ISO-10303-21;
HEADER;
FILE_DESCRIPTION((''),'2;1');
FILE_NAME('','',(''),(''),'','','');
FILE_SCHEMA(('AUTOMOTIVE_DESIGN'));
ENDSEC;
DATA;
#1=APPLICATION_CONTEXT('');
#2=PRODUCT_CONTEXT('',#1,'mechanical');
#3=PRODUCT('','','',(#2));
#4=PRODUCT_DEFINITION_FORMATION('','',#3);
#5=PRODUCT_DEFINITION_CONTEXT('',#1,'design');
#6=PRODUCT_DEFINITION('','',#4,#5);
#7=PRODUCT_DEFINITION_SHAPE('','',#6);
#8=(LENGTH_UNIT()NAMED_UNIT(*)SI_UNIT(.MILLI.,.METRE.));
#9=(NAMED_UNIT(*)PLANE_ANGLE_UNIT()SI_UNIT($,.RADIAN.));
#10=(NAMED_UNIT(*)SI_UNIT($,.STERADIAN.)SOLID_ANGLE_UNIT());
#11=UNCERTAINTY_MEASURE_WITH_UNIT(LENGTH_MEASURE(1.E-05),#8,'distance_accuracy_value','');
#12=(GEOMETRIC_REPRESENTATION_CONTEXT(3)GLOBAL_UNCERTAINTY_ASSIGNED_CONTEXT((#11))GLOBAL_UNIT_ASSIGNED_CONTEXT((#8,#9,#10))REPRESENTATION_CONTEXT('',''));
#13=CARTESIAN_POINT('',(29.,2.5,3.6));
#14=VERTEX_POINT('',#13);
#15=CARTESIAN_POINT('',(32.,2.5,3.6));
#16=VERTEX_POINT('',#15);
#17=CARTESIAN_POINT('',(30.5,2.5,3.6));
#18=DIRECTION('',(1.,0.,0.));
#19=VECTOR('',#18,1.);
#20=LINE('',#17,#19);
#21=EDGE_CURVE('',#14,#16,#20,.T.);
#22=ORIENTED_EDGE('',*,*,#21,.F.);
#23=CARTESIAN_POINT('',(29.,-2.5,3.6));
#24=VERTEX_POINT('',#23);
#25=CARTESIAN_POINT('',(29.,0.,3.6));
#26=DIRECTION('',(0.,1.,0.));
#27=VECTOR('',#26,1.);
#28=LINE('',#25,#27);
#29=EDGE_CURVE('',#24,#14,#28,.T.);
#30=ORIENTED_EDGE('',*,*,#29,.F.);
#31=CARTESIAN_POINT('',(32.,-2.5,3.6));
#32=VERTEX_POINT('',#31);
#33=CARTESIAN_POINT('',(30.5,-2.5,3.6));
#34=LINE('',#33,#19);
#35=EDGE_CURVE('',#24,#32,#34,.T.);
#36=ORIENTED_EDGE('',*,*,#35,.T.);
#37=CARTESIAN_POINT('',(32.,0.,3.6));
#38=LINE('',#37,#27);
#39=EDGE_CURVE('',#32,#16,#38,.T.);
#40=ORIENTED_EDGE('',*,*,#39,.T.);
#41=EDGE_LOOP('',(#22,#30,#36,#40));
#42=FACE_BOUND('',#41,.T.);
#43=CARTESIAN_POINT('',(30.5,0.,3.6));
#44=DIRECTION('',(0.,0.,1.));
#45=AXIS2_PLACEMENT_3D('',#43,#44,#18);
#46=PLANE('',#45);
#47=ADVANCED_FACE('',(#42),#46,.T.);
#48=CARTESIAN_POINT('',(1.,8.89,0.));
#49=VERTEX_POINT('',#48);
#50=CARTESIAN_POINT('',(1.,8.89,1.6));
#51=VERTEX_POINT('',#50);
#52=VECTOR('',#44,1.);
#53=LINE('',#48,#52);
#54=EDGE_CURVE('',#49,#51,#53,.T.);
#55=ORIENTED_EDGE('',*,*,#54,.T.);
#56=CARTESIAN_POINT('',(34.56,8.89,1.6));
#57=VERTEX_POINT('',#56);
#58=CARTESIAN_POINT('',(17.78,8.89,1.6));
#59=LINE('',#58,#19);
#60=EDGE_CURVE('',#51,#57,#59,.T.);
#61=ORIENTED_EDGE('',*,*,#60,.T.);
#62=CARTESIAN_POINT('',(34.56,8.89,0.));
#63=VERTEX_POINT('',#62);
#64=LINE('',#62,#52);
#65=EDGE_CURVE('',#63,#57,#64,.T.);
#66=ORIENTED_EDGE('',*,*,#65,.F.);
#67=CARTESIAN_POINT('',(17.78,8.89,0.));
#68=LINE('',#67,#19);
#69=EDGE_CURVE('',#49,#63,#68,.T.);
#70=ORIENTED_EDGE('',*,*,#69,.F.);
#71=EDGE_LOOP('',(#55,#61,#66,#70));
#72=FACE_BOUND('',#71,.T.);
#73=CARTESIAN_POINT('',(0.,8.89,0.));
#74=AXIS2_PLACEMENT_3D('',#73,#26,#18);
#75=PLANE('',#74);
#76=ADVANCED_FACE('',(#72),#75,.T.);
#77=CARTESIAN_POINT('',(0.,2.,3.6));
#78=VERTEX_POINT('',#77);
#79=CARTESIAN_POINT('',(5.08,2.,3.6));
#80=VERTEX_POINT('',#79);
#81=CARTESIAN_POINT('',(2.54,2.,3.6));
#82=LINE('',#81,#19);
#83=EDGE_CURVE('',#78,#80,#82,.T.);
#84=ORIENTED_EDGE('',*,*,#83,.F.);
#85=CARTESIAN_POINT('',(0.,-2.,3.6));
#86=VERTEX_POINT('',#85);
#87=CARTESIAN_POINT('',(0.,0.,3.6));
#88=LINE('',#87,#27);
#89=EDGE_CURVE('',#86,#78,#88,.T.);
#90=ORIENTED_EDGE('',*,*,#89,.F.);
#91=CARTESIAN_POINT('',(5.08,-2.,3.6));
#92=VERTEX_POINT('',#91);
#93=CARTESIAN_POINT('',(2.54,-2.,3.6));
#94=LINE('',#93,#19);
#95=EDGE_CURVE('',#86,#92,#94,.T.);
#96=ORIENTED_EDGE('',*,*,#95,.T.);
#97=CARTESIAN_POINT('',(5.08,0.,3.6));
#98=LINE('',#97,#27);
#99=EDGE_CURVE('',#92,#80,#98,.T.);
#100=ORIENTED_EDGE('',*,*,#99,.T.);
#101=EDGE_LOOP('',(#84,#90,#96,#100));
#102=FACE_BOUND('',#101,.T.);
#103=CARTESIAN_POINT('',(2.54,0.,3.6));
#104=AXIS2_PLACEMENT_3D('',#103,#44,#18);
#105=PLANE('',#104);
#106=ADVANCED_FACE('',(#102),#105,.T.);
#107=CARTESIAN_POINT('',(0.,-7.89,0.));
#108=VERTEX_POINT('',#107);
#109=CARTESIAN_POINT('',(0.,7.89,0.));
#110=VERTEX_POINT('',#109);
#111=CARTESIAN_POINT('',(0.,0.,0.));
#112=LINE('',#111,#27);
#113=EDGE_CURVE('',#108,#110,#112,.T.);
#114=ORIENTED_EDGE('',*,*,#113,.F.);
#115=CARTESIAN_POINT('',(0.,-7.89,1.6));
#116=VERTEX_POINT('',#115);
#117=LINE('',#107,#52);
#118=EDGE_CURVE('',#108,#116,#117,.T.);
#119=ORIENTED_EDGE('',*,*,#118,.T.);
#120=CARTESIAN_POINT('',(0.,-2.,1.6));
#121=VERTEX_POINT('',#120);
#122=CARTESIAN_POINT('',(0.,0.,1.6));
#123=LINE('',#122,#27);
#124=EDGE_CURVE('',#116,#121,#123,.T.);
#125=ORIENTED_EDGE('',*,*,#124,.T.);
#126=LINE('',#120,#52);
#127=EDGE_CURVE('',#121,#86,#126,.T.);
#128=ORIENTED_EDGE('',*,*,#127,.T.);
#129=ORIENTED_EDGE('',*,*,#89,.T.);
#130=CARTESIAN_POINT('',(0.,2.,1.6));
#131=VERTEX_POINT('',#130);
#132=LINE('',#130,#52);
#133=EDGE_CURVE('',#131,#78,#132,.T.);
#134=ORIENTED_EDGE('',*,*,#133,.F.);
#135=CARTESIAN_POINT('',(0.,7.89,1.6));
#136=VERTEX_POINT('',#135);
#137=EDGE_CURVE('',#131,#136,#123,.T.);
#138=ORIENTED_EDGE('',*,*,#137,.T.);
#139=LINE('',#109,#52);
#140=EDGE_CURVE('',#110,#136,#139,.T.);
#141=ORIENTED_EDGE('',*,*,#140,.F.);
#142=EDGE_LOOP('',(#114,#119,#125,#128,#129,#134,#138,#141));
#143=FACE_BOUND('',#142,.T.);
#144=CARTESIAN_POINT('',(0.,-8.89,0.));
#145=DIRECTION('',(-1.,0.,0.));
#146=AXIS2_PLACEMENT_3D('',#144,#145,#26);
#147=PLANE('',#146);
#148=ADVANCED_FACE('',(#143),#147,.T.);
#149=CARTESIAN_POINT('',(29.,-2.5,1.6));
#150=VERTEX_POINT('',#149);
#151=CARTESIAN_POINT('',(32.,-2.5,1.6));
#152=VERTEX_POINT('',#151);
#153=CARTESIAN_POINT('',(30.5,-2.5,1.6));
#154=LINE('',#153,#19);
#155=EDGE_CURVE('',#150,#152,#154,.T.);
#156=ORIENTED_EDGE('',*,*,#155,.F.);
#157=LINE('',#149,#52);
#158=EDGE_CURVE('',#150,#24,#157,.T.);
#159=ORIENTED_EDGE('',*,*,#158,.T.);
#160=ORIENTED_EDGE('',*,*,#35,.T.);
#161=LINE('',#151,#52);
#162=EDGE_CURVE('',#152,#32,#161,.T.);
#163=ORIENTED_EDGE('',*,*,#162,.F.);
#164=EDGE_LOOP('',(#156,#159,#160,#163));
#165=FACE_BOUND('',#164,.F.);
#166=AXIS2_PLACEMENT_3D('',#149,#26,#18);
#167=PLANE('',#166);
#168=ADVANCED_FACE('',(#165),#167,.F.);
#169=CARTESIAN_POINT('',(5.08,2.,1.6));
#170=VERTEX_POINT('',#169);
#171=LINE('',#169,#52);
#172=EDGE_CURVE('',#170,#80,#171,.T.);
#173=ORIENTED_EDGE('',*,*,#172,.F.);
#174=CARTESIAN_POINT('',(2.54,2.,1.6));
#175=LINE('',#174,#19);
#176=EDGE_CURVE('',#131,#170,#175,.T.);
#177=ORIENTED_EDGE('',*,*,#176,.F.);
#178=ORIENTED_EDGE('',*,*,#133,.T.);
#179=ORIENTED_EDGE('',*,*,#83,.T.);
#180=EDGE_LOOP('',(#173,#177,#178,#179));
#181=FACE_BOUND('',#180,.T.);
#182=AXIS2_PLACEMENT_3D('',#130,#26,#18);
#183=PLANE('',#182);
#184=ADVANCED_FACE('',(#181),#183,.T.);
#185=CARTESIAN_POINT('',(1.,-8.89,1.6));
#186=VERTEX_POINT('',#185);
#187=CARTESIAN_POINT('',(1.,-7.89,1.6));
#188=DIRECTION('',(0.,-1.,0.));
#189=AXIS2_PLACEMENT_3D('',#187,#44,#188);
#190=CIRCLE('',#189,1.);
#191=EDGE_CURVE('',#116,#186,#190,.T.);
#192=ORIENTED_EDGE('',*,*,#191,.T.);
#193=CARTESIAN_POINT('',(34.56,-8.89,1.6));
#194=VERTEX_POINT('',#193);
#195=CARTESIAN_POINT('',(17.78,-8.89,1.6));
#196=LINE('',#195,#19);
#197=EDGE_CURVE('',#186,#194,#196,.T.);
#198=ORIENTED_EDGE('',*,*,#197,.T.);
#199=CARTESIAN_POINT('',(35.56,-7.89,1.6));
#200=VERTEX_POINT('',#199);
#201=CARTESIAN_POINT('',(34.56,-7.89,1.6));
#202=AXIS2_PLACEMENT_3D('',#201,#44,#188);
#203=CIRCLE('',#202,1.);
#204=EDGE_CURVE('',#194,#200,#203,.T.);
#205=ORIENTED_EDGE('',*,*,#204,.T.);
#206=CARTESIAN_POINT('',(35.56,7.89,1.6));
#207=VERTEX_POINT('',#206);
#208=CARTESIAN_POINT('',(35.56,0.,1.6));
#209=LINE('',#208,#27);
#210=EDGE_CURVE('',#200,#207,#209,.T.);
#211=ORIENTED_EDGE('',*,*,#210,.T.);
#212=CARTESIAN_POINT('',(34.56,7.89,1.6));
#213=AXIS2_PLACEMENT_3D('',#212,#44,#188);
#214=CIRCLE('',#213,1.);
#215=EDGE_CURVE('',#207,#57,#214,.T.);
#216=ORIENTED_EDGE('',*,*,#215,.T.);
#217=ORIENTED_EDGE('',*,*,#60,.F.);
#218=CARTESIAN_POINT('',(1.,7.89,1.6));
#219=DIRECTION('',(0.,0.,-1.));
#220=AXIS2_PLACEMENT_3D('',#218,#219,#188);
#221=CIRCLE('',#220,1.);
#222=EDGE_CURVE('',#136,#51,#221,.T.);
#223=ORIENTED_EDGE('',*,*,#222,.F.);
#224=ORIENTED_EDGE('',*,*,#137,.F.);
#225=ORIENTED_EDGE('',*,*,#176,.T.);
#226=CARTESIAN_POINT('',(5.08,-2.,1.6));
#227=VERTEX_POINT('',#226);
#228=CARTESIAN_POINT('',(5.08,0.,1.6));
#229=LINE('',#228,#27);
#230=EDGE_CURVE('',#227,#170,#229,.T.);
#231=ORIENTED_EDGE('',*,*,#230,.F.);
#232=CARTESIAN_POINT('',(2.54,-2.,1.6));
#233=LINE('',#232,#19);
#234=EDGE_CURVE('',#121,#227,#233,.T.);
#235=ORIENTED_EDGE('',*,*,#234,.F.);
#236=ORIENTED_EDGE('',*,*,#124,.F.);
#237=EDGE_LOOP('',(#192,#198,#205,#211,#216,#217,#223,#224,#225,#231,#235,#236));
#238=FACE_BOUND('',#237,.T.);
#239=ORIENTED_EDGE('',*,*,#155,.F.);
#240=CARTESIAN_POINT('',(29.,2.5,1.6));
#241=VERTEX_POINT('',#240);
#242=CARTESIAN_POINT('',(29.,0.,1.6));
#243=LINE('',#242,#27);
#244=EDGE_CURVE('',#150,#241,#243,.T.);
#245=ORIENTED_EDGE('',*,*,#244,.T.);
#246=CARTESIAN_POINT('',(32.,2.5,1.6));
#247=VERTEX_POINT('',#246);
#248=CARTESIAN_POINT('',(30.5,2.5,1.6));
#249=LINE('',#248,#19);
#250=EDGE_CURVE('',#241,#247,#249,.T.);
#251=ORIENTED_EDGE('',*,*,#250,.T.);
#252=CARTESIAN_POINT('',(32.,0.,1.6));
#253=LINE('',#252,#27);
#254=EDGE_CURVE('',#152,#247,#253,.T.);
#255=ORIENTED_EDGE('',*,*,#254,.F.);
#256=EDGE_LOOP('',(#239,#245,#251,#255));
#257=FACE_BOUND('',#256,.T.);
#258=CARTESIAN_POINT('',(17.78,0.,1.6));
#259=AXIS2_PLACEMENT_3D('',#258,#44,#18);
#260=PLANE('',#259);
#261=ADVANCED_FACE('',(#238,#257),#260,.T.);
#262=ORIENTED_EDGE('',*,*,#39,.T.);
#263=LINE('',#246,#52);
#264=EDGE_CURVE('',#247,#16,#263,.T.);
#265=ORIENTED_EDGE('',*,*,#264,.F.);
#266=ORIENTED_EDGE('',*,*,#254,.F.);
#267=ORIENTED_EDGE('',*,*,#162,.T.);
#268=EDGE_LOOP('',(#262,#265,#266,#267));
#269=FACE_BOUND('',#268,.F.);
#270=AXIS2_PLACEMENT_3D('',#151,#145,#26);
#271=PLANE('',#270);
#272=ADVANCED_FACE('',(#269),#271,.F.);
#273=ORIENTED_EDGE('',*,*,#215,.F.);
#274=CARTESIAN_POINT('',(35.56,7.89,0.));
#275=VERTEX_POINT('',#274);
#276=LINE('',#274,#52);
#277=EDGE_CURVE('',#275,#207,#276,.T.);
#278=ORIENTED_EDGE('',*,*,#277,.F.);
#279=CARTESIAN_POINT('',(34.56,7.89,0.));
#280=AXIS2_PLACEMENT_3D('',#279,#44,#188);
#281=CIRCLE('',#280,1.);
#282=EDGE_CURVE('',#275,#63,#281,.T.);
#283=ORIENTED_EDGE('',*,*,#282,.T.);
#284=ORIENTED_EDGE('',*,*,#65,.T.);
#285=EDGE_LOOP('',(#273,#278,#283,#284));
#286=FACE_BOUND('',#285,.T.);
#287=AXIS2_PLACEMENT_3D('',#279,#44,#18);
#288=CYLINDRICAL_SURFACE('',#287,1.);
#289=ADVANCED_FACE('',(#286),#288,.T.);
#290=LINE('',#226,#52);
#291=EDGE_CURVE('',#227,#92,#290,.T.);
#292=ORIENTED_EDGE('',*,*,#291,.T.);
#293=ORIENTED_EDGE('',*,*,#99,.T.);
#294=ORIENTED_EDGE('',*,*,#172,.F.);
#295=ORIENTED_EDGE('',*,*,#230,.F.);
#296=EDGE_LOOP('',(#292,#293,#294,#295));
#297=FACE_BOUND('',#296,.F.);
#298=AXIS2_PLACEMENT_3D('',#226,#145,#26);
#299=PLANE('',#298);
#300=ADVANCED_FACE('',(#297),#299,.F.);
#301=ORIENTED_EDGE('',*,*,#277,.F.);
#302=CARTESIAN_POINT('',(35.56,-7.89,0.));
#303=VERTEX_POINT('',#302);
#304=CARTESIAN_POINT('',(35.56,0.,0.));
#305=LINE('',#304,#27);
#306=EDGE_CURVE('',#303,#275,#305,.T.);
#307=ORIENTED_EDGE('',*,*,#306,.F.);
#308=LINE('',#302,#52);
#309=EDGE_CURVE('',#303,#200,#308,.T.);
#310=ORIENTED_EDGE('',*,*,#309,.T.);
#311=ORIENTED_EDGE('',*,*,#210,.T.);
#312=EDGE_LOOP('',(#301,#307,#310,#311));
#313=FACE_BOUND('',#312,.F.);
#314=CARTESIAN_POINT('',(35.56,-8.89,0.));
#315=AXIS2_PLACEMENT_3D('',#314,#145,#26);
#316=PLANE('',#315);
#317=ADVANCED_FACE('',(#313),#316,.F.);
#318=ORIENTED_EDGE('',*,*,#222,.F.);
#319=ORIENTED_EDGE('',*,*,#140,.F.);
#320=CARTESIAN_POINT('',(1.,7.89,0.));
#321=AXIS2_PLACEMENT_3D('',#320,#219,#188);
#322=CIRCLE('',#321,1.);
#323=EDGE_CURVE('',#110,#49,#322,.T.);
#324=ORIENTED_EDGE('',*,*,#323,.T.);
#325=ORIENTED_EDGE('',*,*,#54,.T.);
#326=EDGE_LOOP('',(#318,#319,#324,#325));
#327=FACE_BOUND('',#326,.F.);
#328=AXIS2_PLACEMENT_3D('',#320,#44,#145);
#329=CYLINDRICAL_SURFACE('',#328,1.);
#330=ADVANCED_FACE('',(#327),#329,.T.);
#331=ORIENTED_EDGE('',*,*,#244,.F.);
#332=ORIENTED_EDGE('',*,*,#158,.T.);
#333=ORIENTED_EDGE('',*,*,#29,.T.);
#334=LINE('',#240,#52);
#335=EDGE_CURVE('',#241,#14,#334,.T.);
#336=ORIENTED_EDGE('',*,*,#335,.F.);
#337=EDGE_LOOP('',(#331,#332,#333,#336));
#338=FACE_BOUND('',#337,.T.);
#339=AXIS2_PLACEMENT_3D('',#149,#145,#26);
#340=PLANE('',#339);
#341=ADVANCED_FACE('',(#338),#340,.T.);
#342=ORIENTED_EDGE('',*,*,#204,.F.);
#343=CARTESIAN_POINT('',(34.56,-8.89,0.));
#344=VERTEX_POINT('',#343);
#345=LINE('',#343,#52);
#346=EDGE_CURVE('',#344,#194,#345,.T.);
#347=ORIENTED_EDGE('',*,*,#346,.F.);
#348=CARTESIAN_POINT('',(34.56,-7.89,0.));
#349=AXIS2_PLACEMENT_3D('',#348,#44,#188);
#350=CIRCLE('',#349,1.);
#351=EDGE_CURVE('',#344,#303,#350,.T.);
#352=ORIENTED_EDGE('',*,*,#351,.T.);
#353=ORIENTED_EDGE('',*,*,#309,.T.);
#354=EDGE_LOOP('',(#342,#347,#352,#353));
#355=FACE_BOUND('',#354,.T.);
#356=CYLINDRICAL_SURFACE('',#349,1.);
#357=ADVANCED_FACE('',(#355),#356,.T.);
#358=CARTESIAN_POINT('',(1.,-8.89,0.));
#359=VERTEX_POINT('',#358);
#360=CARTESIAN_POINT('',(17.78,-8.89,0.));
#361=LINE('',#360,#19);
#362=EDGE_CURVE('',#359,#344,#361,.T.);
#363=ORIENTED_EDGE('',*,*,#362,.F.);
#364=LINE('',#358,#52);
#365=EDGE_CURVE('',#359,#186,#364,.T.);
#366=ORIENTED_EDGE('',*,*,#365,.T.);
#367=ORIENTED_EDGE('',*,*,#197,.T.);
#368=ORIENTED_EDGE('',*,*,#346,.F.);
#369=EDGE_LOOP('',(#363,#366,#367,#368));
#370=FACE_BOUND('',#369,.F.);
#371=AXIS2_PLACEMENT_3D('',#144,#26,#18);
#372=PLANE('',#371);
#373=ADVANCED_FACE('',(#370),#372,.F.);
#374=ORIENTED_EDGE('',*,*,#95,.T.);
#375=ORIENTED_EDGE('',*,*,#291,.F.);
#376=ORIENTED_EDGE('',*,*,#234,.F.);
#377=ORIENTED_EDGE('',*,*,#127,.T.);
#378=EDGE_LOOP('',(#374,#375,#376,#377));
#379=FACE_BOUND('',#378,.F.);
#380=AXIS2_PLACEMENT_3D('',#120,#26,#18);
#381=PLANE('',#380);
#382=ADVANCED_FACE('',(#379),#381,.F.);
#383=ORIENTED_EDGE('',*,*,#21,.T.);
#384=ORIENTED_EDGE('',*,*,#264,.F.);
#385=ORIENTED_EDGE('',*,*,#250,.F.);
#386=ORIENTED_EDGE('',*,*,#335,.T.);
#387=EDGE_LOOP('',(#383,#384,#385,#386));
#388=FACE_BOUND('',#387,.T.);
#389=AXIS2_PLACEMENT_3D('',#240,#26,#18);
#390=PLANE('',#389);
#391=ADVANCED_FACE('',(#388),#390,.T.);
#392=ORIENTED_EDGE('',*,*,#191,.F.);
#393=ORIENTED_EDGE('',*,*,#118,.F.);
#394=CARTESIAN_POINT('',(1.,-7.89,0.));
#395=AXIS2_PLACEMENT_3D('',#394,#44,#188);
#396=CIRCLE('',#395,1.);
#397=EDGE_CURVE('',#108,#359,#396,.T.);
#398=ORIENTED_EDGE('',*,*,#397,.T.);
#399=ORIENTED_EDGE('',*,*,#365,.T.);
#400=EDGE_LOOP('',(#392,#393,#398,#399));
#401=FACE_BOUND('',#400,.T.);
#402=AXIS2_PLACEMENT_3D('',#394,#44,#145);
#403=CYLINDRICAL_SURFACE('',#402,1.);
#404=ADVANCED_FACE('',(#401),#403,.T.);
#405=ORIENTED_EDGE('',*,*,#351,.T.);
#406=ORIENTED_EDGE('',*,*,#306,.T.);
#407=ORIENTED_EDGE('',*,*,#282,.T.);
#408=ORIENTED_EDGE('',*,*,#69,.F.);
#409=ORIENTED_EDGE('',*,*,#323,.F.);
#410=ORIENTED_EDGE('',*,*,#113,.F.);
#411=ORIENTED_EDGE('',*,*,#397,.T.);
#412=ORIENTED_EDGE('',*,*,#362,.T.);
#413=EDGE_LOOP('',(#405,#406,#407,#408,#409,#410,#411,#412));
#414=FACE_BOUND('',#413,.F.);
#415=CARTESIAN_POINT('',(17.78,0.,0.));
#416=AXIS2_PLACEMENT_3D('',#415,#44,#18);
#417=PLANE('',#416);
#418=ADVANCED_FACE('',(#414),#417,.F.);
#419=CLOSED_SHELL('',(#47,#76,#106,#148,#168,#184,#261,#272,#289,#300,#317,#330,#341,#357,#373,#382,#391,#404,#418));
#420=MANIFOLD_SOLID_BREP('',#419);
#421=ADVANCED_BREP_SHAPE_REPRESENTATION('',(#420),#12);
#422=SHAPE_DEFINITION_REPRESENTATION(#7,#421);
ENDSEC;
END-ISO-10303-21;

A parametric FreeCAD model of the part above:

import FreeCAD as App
import Part
import Sketcher
Q = App.Units.Quantity


def edges_at(feature, points):
    """Names of the edges that pass closest to the given points."""
    edges = feature.Shape.Edges
    near = lambda p: min(range(len(edges)), key=lambda i: edges[i].distToShape(Part.Vertex(*p))[0])
    return sorted({f"Edge{near(p) + 1}" for p in points})

doc = App.newDocument("Part")
params = doc.addObject("Spreadsheet::Sheet", "Params")
for row, (alias, value) in enumerate([
    ("sketch1_width", "35.56 mm"),
    ("sketch1_height", "17.78 mm"),
    ("pad1_length", "1.6 mm"),
    ("fillet_radius", "1 mm"),
    ("sketch2_width", "3 mm"),
    ("sketch2_height", "4 mm"),
    ("sketch2_height2", "5 mm"),
    ("sketch2_width2", "5.08 mm"),
    ("pad2_length", "2 mm"),
], start=1):
    params.set(f"A{row}", alias)
    params.set(f"B{row}", "=" + value)
    params.setAlias(f"B{row}", alias)

body = doc.addObject("PartDesign::Body", "Body")

# Sketch on XY plane
sketch1 = doc.addObject("Sketcher::SketchObject", "Sketch")
body.addObject(sketch1)
sketch1.AttachmentSupport = (doc.XY_Plane, [""])
sketch1.MapMode = "FlatFace"
sketch1.addGeometry([
    Part.LineSegment(App.Vector(0, 9, 0), App.Vector(0, -9, 0)),
    Part.LineSegment(App.Vector(0, -9, 0), App.Vector(36, -9, 0)),
    Part.LineSegment(App.Vector(36, -9, 0), App.Vector(36, 9, 0)),
    Part.LineSegment(App.Vector(36, 9, 0), App.Vector(0, 9, 0)),
], False)
sketch1.addConstraint([
    Sketcher.Constraint("Coincident", 0, 2, 1, 1),
    Sketcher.Constraint("Coincident", 1, 2, 2, 1),
    Sketcher.Constraint("Coincident", 2, 2, 3, 1),
    Sketcher.Constraint("Coincident", 3, 2, 0, 1),
    Sketcher.Constraint("Vertical", 0),
    Sketcher.Constraint("Horizontal", 1),
    Sketcher.Constraint("Vertical", 2),
    Sketcher.Constraint("Horizontal", 3),
    Sketcher.Constraint("Symmetric", 0, 2, 3, 2, -1, 1),
    Sketcher.Constraint("DistanceX", 1, 1, 1, 2, Q("35.56 mm")),
    Sketcher.Constraint("DistanceY", 0, 2, 0, 1, Q("17.78 mm")),
])
sketch1.setExpression("Constraints[9]", "Params.sketch1_width")
sketch1.setExpression("Constraints[10]", "Params.sketch1_height")
pad1 = doc.addObject("PartDesign::Pad", "Pad")
body.addObject(pad1)
pad1.Profile = sketch1
pad1.setExpression("Length", "Params.pad1_length")
doc.recompute()

fillet = doc.addObject("PartDesign::Fillet", "Fillet")
body.addObject(fillet)
fillet.Base = (pad1, edges_at(pad1, [
    (0, -8.89, 0.8),
    (0, 8.89, 0.8),
    (35.56, -8.89, 0.8),
    (35.56, 8.89, 0.8),
]))
fillet.setExpression("Radius", "Params.fillet_radius")

# Sketch on XY plane
sketch2 = doc.addObject("Sketcher::SketchObject", "Sketch001")
body.addObject(sketch2)
sketch2.AttachmentSupport = (doc.XY_Plane, [""])
sketch2.MapMode = "FlatFace"
sketch2.AttachmentOffset = App.Placement(App.Vector(0, 0, 1.6), App.Rotation())
sketch2.addGeometry([
    Part.LineSegment(App.Vector(0, 2, 0), App.Vector(0, -2, 0)),  # 0
    Part.LineSegment(App.Vector(0, -2, 0), App.Vector(5.1, -2, 0)),  # 1
    Part.LineSegment(App.Vector(5.1, -2, 0), App.Vector(5.1, 2, 0)),  # 2
    Part.LineSegment(App.Vector(5.1, 2, 0), App.Vector(0, 2, 0)),  # 3
    Part.LineSegment(App.Vector(29, 2.5, 0), App.Vector(29, -2.5, 0)),  # 4
    Part.LineSegment(App.Vector(29, -2.5, 0), App.Vector(32, -2.5, 0)),  # 5
    Part.LineSegment(App.Vector(32, -2.5, 0), App.Vector(32, 2.5, 0)),  # 6
    Part.LineSegment(App.Vector(32, 2.5, 0), App.Vector(29, 2.5, 0)),  # 7
], False)
sketch2.addConstraint([
    Sketcher.Constraint("Coincident", 0, 2, 1, 1),
    Sketcher.Constraint("Coincident", 1, 2, 2, 1),
    Sketcher.Constraint("Coincident", 2, 2, 3, 1),
    Sketcher.Constraint("Coincident", 3, 2, 0, 1),
    Sketcher.Constraint("Coincident", 4, 2, 5, 1),
    Sketcher.Constraint("Coincident", 5, 2, 6, 1),
    Sketcher.Constraint("Coincident", 6, 2, 7, 1),
    Sketcher.Constraint("Coincident", 7, 2, 4, 1),
    Sketcher.Constraint("Vertical", 0),
    Sketcher.Constraint("Horizontal", 1),
    Sketcher.Constraint("Vertical", 2),
    Sketcher.Constraint("Horizontal", 3),
    Sketcher.Constraint("Vertical", 4),
    Sketcher.Constraint("Horizontal", 5),
    Sketcher.Constraint("Vertical", 6),
    Sketcher.Constraint("Horizontal", 7),
    Sketcher.Constraint("Symmetric", 0, 2, 3, 2, -1, 1),
    Sketcher.Constraint("DistanceX", 5, 1, 5, 2, Q("3 mm")),
    Sketcher.Constraint("DistanceY", 0, 2, 0, 1, Q("4 mm")),
    Sketcher.Constraint("DistanceY", 4, 2, 4, 1, Q("5 mm")),
    Sketcher.Constraint("DistanceX", -1, 1, 4, 2, Q("29 mm")),
    Sketcher.Constraint("DistanceX", 1, 1, 1, 2, Q("5.08 mm")),
    Sketcher.Constraint("DistanceY", 4, 2, -1, 1, Q("2.5 mm")),
])
sketch2.setExpression("Constraints[17]", "Params.sketch2_width")
sketch2.setExpression("Constraints[18]", "Params.sketch2_height")
sketch2.setExpression("Constraints[19]", "Params.sketch2_height2")
sketch2.setExpression("Constraints[21]", "Params.sketch2_width2")
pad2 = doc.addObject("PartDesign::Pad", "Pad001")
body.addObject(pad2)
pad2.Profile = sketch2
pad2.setExpression("Length", "Params.pad2_length")

doc.recompute()
